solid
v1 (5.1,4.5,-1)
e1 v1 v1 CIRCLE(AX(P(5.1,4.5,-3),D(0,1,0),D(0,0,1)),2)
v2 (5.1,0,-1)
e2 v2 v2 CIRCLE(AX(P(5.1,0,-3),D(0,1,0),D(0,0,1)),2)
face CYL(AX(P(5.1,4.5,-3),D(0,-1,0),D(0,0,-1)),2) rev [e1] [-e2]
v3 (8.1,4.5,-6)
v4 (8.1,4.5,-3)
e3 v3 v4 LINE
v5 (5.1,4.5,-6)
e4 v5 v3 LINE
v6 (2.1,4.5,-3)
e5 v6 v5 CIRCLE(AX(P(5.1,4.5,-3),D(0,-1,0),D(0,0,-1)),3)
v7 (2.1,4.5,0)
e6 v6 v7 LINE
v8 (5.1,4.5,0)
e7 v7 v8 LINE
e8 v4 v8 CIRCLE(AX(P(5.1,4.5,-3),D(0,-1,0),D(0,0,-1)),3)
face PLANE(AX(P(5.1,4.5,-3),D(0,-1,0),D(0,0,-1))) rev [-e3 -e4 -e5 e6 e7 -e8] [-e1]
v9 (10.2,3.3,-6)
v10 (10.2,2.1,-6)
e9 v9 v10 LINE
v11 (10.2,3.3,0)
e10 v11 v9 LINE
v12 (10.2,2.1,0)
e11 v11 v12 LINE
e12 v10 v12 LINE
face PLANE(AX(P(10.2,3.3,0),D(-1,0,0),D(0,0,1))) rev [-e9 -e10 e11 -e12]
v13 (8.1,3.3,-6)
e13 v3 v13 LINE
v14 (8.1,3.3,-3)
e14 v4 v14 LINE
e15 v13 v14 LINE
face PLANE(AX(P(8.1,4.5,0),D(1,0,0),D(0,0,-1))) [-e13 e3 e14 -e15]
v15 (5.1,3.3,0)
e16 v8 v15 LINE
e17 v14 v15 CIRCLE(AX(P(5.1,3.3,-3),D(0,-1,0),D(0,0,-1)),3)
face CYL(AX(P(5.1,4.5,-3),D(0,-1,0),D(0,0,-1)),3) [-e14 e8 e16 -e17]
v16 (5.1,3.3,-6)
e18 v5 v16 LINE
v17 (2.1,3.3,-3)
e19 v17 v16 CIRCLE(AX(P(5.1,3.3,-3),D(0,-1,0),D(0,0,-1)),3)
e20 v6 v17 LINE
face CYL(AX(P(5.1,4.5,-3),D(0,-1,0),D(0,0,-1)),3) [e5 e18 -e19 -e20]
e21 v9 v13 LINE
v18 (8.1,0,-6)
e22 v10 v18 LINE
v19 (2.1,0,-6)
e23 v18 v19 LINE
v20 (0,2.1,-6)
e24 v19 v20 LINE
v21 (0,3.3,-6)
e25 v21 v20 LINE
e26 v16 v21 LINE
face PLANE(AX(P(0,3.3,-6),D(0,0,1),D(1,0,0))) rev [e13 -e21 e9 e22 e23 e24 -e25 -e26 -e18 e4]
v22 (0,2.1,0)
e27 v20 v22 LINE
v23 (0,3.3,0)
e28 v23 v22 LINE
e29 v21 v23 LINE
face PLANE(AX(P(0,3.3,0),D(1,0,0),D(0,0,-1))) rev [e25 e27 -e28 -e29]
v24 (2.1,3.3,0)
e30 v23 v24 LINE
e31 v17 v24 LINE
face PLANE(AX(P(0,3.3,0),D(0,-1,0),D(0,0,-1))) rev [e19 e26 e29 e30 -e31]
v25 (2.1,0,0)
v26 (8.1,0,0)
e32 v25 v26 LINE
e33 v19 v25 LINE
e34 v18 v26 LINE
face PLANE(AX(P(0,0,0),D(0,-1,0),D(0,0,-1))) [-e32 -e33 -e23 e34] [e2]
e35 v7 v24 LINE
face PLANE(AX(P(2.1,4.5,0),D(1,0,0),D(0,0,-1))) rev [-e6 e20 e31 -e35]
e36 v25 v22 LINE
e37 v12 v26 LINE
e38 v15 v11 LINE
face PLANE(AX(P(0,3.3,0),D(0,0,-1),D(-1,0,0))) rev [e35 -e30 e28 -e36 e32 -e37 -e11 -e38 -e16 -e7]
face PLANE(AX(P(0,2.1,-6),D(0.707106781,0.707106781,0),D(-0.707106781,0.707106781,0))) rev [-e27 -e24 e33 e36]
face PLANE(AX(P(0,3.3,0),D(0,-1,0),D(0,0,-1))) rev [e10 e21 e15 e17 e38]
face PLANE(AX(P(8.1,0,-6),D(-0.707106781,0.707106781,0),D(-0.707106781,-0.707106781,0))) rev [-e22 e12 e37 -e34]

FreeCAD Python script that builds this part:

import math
import FreeCAD as App
import Part
import Sketcher

V = App.Vector
Q = App.Units.Quantity

doc = App.newDocument("Part")
params = doc.addObject("Spreadsheet::Sheet", "Params")
for row, (alias, value) in enumerate([
    ("sketch1_height", "6 mm"),
    ("sketch1_width", "10.2 mm"),
    ("pad1_length", "3.3 mm"),
    ("sketch2_radius", "3 mm"),
    ("pad2_length", "1.2 mm"),
    ("sketch3_width", "2.1 mm"),
    ("sketch4_diameter", "4 mm"),
], start=1):
    params.set(f"A{row}", alias)
    params.set(f"B{row}", "=" + value)
    params.setAlias(f"B{row}", alias)

body = doc.addObject("PartDesign::Body", "Body")

# Sketch on XZ plane
sketch1 = body.newObject("Sketcher::SketchObject", "Sketch")
sketch1.AttachmentSupport = (doc.getObject("XZ_Plane"), [""])
sketch1.MapMode = "FlatFace"
sketch1.addGeometry(Part.LineSegment(V(0, -6, 0), V(0, 0, 0)), False)
sketch1.addGeometry(Part.LineSegment(V(0, 0, 0), V(10, 0, 0)), False)
sketch1.addGeometry(Part.LineSegment(V(10, 0, 0), V(10, -6, 0)), False)
sketch1.addGeometry(Part.LineSegment(V(10, -6, 0), V(0, -6, 0)), False)
sketch1.addConstraint(Sketcher.Constraint("Coincident", 0, 2, 1, 1))
sketch1.addConstraint(Sketcher.Constraint("Coincident", 1, 2, 2, 1))
sketch1.addConstraint(Sketcher.Constraint("Coincident", 2, 2, 3, 1))
sketch1.addConstraint(Sketcher.Constraint("Coincident", 3, 2, 0, 1))
sketch1.addConstraint(Sketcher.Constraint("Vertical", 0))
sketch1.addConstraint(Sketcher.Constraint("Horizontal", 1))
sketch1.addConstraint(Sketcher.Constraint("Vertical", 2))
sketch1.addConstraint(Sketcher.Constraint("Horizontal", 3))
sketch1.addConstraint(Sketcher.Constraint("Coincident", 0, 2, -1, 1))
sketch1.addConstraint(Sketcher.Constraint("DistanceY", 0, 1, 0, 2, Q("6 mm")))
sketch1.addConstraint(Sketcher.Constraint("DistanceX", 1, 1, 1, 2, Q("10.2 mm")))
sketch1.setExpression("Constraints[9]", "Params.sketch1_height")
sketch1.setExpression("Constraints[10]", "Params.sketch1_width")
pad1 = body.newObject("PartDesign::Pad", "Pad")
pad1.Profile = sketch1
pad1.setExpression("Length", "Params.pad1_length")
pad1.Reversed = True

# Sketch on XZ plane
sketch2 = body.newObject("Sketcher::SketchObject", "Sketch001")
sketch2.AttachmentSupport = (doc.getObject("XZ_Plane"), [""])
sketch2.MapMode = "FlatFace"
sketch2.AttachmentOffset = App.Placement(V(0, 0, -3.3), App.Rotation())
sketch2.addGeometry(Part.LineSegment(V(2.1, -3, 0), V(2.1, 0, 0)), False)
sketch2.addGeometry(Part.LineSegment(V(2.1, 0, 0), V(5.1, 0, 0)), False)
sketch2.addGeometry(Part.ArcOfCircle(Part.Circle(V(5.1, -3, 0), V(0, 0, 1), 3), math.radians(0), math.radians(90)), False)
sketch2.addGeometry(Part.LineSegment(V(8.1, -3, 0), V(8.1, -6, 0)), False)
sketch2.addGeometry(Part.LineSegment(V(8.1, -6, 0), V(5.1, -6, 0)), False)
sketch2.addGeometry(Part.ArcOfCircle(Part.Circle(V(5.1, -3, 0), V(0, 0, 1), 3), math.radians(180), math.radians(270)), False)
sketch2.addConstraint(Sketcher.Constraint("Coincident", 0, 2, 1, 1))
sketch2.addConstraint(Sketcher.Constraint("Tangent", 1, 2, 2, 2))
sketch2.addConstraint(Sketcher.Constraint("Tangent", 2, 1, 3, 1))
sketch2.addConstraint(Sketcher.Constraint("Coincident", 3, 2, 4, 1))
sketch2.addConstraint(Sketcher.Constraint("Tangent", 4, 2, 5, 2))
sketch2.addConstraint(Sketcher.Constraint("Tangent", 5, 1, 0, 1))
sketch2.addConstraint(Sketcher.Constraint("Vertical", 0))
sketch2.addConstraint(Sketcher.Constraint("Horizontal", 1))
sketch2.addConstraint(Sketcher.Constraint("Vertical", 3))
sketch2.addConstraint(Sketcher.Constraint("Horizontal", 4))
sketch2.addConstraint(Sketcher.Constraint("Coincident", 5, 3, 2, 3))
sketch2.addConstraint(Sketcher.Constraint("Equal", 2, 5))
sketch2.addConstraint(Sketcher.Constraint("PointOnObject", 0, 2, -1))
sketch2.addConstraint(Sketcher.Constraint("Radius", 2, Q("3 mm")))
sketch2.addConstraint(Sketcher.Constraint("DistanceX", -1, 1, 2, 3, Q("5.1 mm")))
sketch2.setExpression("Constraints[13]", "Params.sketch2_radius")
pad2 = body.newObject("PartDesign::Pad", "Pad001")
pad2.Profile = sketch2
pad2.setExpression("Length", "Params.pad2_length")
pad2.Reversed = True

# Sketch on XY plane
sketch3 = body.newObject("Sketcher::SketchObject", "Sketch002")
sketch3.AttachmentSupport = (doc.getObject("XY_Plane"), [""])
sketch3.MapMode = "FlatFace"
sketch3.addGeometry(Part.LineSegment(V(2.1, 0, 0), V(0, 2.1, 0)), False)
sketch3.addGeometry(Part.LineSegment(V(0, 2.1, 0), V(0, 0, 0)), False)
sketch3.addGeometry(Part.LineSegment(V(0, 0, 0), V(2.1, 0, 0)), False)
sketch3.addGeometry(Part.LineSegment(V(10.2, 2.1, 0), V(8.1, 0, 0)), False)
sketch3.addGeometry(Part.LineSegment(V(8.1, 0, 0), V(10.2, 0, 0)), False)
sketch3.addGeometry(Part.LineSegment(V(10.2, 0, 0), V(10.2, 2.1, 0)), False)
sketch3.addConstraint(Sketcher.Constraint("Coincident", 0, 2, 1, 1))
sketch3.addConstraint(Sketcher.Constraint("Coincident", 1, 2, 2, 1))
sketch3.addConstraint(Sketcher.Constraint("Coincident", 2, 2, 0, 1))
sketch3.addConstraint(Sketcher.Constraint("Coincident", 3, 2, 4, 1))
sketch3.addConstraint(Sketcher.Constraint("Coincident", 4, 2, 5, 1))
sketch3.addConstraint(Sketcher.Constraint("Coincident", 5, 2, 3, 1))
sketch3.addConstraint(Sketcher.Constraint("Vertical", 1))
sketch3.addConstraint(Sketcher.Constraint("Horizontal", 2))
sketch3.addConstraint(Sketcher.Constraint("Horizontal", 4))
sketch3.addConstraint(Sketcher.Constraint("Vertical", 5))
sketch3.addConstraint(Sketcher.Constraint("Coincident", 1, 2, -1, 1))
sketch3.addConstraint(Sketcher.Constraint("PointOnObject", 3, 2, -1))
sketch3.addConstraint(Sketcher.Constraint("Perpendicular", 0, 3))
sketch3.addConstraint(Sketcher.Constraint("Horizontal", 0, 2, 5, 2))
sketch3.addConstraint(Sketcher.Constraint("Equal", 2, 4))
sketch3.addConstraint(Sketcher.Constraint("DistanceX", 2, 1, 2, 2, Q("2.1 mm")))
sketch3.addConstraint(Sketcher.Constraint("DistanceX", 2, 2, 3, 2, Q("6 mm")))
sketch3.setExpression("Constraints[15]", "Params.sketch3_width")
pocket1 = body.newObject("PartDesign::Pocket", "Pocket")
pocket1.Profile = sketch3
pocket1.Type = "ThroughAll"

# Sketch on XZ plane
sketch4 = body.newObject("Sketcher::SketchObject", "Sketch003")
sketch4.AttachmentSupport = (doc.getObject("XZ_Plane"), [""])
sketch4.MapMode = "FlatFace"
sketch4.addGeometry(Part.Circle(V(5.1, -3, 0), V(0, 0, 1), 2), False)
sketch4.addConstraint(Sketcher.Constraint("Diameter", 0, Q("4 mm")))
sketch4.addConstraint(Sketcher.Constraint("DistanceY", 0, 3, -1, 1, Q("3 mm")))
sketch4.addConstraint(Sketcher.Constraint("DistanceX", -1, 1, 0, 3, Q("5.1 mm")))
sketch4.setExpression("Constraints[0]", "Params.sketch4_diameter")
pocket2 = body.newObject("PartDesign::Pocket", "Pocket001")
pocket2.Profile = sketch4
pocket2.Type = "ThroughAll"

doc.recompute()
